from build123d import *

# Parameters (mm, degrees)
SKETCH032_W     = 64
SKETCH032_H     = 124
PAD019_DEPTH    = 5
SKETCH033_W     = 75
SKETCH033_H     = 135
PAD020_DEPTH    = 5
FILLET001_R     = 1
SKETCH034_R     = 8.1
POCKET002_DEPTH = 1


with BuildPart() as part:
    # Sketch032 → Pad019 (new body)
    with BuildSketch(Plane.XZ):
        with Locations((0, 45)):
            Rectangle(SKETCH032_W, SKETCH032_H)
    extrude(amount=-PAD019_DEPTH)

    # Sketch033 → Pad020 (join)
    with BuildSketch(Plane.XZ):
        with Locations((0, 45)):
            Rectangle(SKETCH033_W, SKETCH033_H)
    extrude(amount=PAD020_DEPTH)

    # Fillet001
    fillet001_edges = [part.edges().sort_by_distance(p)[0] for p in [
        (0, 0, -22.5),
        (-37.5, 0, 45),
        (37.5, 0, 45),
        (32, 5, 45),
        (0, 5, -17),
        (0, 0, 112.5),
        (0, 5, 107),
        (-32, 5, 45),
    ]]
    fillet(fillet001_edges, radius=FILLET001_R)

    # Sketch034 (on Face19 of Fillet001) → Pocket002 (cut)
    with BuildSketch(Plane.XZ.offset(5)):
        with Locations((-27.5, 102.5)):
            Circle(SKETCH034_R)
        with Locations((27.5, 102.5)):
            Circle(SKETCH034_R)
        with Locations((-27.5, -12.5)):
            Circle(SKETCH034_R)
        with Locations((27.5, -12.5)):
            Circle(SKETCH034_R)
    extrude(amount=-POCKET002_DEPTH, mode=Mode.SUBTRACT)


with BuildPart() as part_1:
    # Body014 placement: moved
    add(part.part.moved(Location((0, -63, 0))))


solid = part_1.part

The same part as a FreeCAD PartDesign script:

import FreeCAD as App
import Part
import Sketcher

V = App.Vector
Q = App.Units.Quantity


def edges_at(feature, points):
    """Names of the edges that pass closest to the given points."""
    edges = feature.Shape.Edges
    near = lambda p: min(range(len(edges)), key=lambda i: edges[i].distToShape(Part.Vertex(*p))[0])
    return sorted({f"Edge{near(p) + 1}" for p in points})

doc = App.newDocument("Part")
params = doc.addObject("Spreadsheet::Sheet", "Params")
for row, (alias, value) in enumerate([
    ("sketch1_width", "64 mm"),
    ("sketch1_height", "124 mm"),
    ("pad1_length", "5 mm"),
    ("sketch2_width", "75 mm"),
    ("sketch2_height", "135 mm"),
    ("pad2_length", "5 mm"),
    ("fillet_radius", "1 mm"),
    ("sketch3_diameter", "16.2 mm"),
    ("pocket1_length", "1 mm"),
], start=1):
    params.set(f"A{row}", alias)
    params.set(f"B{row}", "=" + value)
    params.setAlias(f"B{row}", alias)

body = doc.addObject("PartDesign::Body", "Body")

# Sketch on XZ plane
sketch1 = body.newObject("Sketcher::SketchObject", "Sketch")
sketch1.AttachmentSupport = (doc.getObject("XZ_Plane"), [""])
sketch1.MapMode = "FlatFace"
sketch1.addGeometry(Part.LineSegment(V(-32, 107, 0), V(-32, -17, 0)), False)
sketch1.addGeometry(Part.LineSegment(V(-32, -17, 0), V(32, -17, 0)), False)
sketch1.addGeometry(Part.LineSegment(V(32, -17, 0), V(32, 107, 0)), False)
sketch1.addGeometry(Part.LineSegment(V(32, 107, 0), V(-32, 107, 0)), False)
sketch1.addConstraint(Sketcher.Constraint("Coincident", 0, 2, 1, 1))
sketch1.addConstraint(Sketcher.Constraint("Coincident", 1, 2, 2, 1))
sketch1.addConstraint(Sketcher.Constraint("Coincident", 2, 2, 3, 1))
sketch1.addConstraint(Sketcher.Constraint("Coincident", 3, 2, 0, 1))
sketch1.addConstraint(Sketcher.Constraint("Vertical", 0))
sketch1.addConstraint(Sketcher.Constraint("Horizontal", 1))
sketch1.addConstraint(Sketcher.Constraint("Vertical", 2))
sketch1.addConstraint(Sketcher.Constraint("Horizontal", 3))
sketch1.addConstraint(Sketcher.Constraint("DistanceX", 1, 1, 1, 2, Q("64 mm")))
sketch1.addConstraint(Sketcher.Constraint("DistanceY", 0, 2, 0, 1, Q("124 mm")))
sketch1.addConstraint(Sketcher.Constraint("DistanceX", 0, 2, -1, 1, Q("32 mm")))
sketch1.addConstraint(Sketcher.Constraint("DistanceY", 0, 2, -1, 1, Q("17 mm")))
sketch1.setExpression("Constraints[8]", "Params.sketch1_width")
sketch1.setExpression("Constraints[9]", "Params.sketch1_height")
pad1 = body.newObject("PartDesign::Pad", "Pad")
pad1.Profile = sketch1
pad1.setExpression("Length", "Params.pad1_length")
pad1.Reversed = True

# Sketch on XZ plane
sketch2 = body.newObject("Sketcher::SketchObject", "Sketch001")
sketch2.AttachmentSupport = (doc.getObject("XZ_Plane"), [""])
sketch2.MapMode = "FlatFace"
sketch2.addGeometry(Part.LineSegment(V(-38, 112, 0), V(-38, -22, 0)), False)
sketch2.addGeometry(Part.LineSegment(V(-38, -22, 0), V(38, -22, 0)), False)
sketch2.addGeometry(Part.LineSegment(V(38, -22, 0), V(38, 112, 0)), False)
sketch2.addGeometry(Part.LineSegment(V(38, 112, 0), V(-38, 112, 0)), False)
sketch2.addConstraint(Sketcher.Constraint("Coincident", 0, 2, 1, 1))
sketch2.addConstraint(Sketcher.Constraint("Coincident", 1, 2, 2, 1))
sketch2.addConstraint(Sketcher.Constraint("Coincident", 2, 2, 3, 1))
sketch2.addConstraint(Sketcher.Constraint("Coincident", 3, 2, 0, 1))
sketch2.addConstraint(Sketcher.Constraint("Vertical", 0))
sketch2.addConstraint(Sketcher.Constraint("Horizontal", 1))
sketch2.addConstraint(Sketcher.Constraint("Vertical", 2))
sketch2.addConstraint(Sketcher.Constraint("Horizontal", 3))
sketch2.addConstraint(Sketcher.Constraint("DistanceX", 1, 1, 1, 2, Q("75 mm")))
sketch2.addConstraint(Sketcher.Constraint("DistanceY", 0, 2, 0, 1, Q("135 mm")))
sketch2.addConstraint(Sketcher.Constraint("DistanceX", 0, 2, -1, 1, Q("37.5 mm")))
sketch2.addConstraint(Sketcher.Constraint("DistanceY", 0, 2, -1, 1, Q("22.5 mm")))
sketch2.setExpression("Constraints[8]", "Params.sketch2_width")
sketch2.setExpression("Constraints[9]", "Params.sketch2_height")
pad2 = body.newObject("PartDesign::Pad", "Pad001")
pad2.Profile = sketch2
pad2.setExpression("Length", "Params.pad2_length")
doc.recompute()

fillet = body.newObject("PartDesign::Fillet", "Fillet")
fillet.Base = (pad2, edges_at(pad2, [
    (0, 0, -22.5),
    (-37.5, 0, 45),
    (37.5, 0, 45),
    (32, 5, 45),
    (0, 5, -17),
    (0, 0, 112.5),
    (0, 5, 107),
    (-32, 5, 45),
]))
fillet.setExpression("Radius", "Params.fillet_radius")

# Sketch on XZ plane
sketch3 = body.newObject("Sketcher::SketchObject", "Sketch002")
sketch3.AttachmentSupport = (doc.getObject("XZ_Plane"), [""])
sketch3.MapMode = "FlatFace"
sketch3.AttachmentOffset = App.Placement(V(0, 0, 5), App.Rotation())
sketch3.addGeometry(Part.Circle(V(-28, 102, 0), V(0, 0, 1), 8), False)
sketch3.addGeometry(Part.Circle(V(28, 102, 0), V(0, 0, 1), 8), False)
sketch3.addGeometry(Part.Circle(V(-28, -12, 0), V(0, 0, 1), 8), False)
sketch3.addGeometry(Part.Circle(V(28, -12, 0), V(0, 0, 1), 8), False)
sketch3.addConstraint(Sketcher.Constraint("Equal", 0, 1))
sketch3.addConstraint(Sketcher.Constraint("Equal", 1, 2))
sketch3.addConstraint(Sketcher.Constraint("Equal", 2, 3))
sketch3.addConstraint(Sketcher.Constraint("Symmetric", 0, 3, 1, 3, -2))
sketch3.addConstraint(Sketcher.Constraint("Symmetric", 2, 3, 3, 3, -2))
sketch3.addConstraint(Sketcher.Constraint("Vertical", 0, 3, 2, 3))
sketch3.addConstraint(Sketcher.Constraint("Diameter", 0, Q("16.2 mm")))
sketch3.addConstraint(Sketcher.Constraint("DistanceX", 0, 3, 1, 3, Q("55 mm")))
sketch3.addConstraint(Sketcher.Constraint("DistanceY", 2, 3, 0, 3, Q("115 mm")))
sketch3.addConstraint(Sketcher.Constraint("DistanceY", -1, 1, 0, 3, Q("102.5 mm")))
sketch3.setExpression("Constraints[6]", "Params.sketch3_diameter")
pocket1 = body.newObject("PartDesign::Pocket", "Pocket")
pocket1.Profile = sketch3
pocket1.setExpression("Length", "Params.pocket1_length")
body2 = doc.addObject("PartDesign::Body", "Body001")
doc.recompute()

body.Placement = App.Placement(V(0, -63, 0), App.Rotation(V(0, 0, 1), 0))
boolean = body2.newObject("PartDesign::Boolean", "Boolean")
boolean.Type = "Fuse"
boolean.addObjects([body])

doc.recompute()
